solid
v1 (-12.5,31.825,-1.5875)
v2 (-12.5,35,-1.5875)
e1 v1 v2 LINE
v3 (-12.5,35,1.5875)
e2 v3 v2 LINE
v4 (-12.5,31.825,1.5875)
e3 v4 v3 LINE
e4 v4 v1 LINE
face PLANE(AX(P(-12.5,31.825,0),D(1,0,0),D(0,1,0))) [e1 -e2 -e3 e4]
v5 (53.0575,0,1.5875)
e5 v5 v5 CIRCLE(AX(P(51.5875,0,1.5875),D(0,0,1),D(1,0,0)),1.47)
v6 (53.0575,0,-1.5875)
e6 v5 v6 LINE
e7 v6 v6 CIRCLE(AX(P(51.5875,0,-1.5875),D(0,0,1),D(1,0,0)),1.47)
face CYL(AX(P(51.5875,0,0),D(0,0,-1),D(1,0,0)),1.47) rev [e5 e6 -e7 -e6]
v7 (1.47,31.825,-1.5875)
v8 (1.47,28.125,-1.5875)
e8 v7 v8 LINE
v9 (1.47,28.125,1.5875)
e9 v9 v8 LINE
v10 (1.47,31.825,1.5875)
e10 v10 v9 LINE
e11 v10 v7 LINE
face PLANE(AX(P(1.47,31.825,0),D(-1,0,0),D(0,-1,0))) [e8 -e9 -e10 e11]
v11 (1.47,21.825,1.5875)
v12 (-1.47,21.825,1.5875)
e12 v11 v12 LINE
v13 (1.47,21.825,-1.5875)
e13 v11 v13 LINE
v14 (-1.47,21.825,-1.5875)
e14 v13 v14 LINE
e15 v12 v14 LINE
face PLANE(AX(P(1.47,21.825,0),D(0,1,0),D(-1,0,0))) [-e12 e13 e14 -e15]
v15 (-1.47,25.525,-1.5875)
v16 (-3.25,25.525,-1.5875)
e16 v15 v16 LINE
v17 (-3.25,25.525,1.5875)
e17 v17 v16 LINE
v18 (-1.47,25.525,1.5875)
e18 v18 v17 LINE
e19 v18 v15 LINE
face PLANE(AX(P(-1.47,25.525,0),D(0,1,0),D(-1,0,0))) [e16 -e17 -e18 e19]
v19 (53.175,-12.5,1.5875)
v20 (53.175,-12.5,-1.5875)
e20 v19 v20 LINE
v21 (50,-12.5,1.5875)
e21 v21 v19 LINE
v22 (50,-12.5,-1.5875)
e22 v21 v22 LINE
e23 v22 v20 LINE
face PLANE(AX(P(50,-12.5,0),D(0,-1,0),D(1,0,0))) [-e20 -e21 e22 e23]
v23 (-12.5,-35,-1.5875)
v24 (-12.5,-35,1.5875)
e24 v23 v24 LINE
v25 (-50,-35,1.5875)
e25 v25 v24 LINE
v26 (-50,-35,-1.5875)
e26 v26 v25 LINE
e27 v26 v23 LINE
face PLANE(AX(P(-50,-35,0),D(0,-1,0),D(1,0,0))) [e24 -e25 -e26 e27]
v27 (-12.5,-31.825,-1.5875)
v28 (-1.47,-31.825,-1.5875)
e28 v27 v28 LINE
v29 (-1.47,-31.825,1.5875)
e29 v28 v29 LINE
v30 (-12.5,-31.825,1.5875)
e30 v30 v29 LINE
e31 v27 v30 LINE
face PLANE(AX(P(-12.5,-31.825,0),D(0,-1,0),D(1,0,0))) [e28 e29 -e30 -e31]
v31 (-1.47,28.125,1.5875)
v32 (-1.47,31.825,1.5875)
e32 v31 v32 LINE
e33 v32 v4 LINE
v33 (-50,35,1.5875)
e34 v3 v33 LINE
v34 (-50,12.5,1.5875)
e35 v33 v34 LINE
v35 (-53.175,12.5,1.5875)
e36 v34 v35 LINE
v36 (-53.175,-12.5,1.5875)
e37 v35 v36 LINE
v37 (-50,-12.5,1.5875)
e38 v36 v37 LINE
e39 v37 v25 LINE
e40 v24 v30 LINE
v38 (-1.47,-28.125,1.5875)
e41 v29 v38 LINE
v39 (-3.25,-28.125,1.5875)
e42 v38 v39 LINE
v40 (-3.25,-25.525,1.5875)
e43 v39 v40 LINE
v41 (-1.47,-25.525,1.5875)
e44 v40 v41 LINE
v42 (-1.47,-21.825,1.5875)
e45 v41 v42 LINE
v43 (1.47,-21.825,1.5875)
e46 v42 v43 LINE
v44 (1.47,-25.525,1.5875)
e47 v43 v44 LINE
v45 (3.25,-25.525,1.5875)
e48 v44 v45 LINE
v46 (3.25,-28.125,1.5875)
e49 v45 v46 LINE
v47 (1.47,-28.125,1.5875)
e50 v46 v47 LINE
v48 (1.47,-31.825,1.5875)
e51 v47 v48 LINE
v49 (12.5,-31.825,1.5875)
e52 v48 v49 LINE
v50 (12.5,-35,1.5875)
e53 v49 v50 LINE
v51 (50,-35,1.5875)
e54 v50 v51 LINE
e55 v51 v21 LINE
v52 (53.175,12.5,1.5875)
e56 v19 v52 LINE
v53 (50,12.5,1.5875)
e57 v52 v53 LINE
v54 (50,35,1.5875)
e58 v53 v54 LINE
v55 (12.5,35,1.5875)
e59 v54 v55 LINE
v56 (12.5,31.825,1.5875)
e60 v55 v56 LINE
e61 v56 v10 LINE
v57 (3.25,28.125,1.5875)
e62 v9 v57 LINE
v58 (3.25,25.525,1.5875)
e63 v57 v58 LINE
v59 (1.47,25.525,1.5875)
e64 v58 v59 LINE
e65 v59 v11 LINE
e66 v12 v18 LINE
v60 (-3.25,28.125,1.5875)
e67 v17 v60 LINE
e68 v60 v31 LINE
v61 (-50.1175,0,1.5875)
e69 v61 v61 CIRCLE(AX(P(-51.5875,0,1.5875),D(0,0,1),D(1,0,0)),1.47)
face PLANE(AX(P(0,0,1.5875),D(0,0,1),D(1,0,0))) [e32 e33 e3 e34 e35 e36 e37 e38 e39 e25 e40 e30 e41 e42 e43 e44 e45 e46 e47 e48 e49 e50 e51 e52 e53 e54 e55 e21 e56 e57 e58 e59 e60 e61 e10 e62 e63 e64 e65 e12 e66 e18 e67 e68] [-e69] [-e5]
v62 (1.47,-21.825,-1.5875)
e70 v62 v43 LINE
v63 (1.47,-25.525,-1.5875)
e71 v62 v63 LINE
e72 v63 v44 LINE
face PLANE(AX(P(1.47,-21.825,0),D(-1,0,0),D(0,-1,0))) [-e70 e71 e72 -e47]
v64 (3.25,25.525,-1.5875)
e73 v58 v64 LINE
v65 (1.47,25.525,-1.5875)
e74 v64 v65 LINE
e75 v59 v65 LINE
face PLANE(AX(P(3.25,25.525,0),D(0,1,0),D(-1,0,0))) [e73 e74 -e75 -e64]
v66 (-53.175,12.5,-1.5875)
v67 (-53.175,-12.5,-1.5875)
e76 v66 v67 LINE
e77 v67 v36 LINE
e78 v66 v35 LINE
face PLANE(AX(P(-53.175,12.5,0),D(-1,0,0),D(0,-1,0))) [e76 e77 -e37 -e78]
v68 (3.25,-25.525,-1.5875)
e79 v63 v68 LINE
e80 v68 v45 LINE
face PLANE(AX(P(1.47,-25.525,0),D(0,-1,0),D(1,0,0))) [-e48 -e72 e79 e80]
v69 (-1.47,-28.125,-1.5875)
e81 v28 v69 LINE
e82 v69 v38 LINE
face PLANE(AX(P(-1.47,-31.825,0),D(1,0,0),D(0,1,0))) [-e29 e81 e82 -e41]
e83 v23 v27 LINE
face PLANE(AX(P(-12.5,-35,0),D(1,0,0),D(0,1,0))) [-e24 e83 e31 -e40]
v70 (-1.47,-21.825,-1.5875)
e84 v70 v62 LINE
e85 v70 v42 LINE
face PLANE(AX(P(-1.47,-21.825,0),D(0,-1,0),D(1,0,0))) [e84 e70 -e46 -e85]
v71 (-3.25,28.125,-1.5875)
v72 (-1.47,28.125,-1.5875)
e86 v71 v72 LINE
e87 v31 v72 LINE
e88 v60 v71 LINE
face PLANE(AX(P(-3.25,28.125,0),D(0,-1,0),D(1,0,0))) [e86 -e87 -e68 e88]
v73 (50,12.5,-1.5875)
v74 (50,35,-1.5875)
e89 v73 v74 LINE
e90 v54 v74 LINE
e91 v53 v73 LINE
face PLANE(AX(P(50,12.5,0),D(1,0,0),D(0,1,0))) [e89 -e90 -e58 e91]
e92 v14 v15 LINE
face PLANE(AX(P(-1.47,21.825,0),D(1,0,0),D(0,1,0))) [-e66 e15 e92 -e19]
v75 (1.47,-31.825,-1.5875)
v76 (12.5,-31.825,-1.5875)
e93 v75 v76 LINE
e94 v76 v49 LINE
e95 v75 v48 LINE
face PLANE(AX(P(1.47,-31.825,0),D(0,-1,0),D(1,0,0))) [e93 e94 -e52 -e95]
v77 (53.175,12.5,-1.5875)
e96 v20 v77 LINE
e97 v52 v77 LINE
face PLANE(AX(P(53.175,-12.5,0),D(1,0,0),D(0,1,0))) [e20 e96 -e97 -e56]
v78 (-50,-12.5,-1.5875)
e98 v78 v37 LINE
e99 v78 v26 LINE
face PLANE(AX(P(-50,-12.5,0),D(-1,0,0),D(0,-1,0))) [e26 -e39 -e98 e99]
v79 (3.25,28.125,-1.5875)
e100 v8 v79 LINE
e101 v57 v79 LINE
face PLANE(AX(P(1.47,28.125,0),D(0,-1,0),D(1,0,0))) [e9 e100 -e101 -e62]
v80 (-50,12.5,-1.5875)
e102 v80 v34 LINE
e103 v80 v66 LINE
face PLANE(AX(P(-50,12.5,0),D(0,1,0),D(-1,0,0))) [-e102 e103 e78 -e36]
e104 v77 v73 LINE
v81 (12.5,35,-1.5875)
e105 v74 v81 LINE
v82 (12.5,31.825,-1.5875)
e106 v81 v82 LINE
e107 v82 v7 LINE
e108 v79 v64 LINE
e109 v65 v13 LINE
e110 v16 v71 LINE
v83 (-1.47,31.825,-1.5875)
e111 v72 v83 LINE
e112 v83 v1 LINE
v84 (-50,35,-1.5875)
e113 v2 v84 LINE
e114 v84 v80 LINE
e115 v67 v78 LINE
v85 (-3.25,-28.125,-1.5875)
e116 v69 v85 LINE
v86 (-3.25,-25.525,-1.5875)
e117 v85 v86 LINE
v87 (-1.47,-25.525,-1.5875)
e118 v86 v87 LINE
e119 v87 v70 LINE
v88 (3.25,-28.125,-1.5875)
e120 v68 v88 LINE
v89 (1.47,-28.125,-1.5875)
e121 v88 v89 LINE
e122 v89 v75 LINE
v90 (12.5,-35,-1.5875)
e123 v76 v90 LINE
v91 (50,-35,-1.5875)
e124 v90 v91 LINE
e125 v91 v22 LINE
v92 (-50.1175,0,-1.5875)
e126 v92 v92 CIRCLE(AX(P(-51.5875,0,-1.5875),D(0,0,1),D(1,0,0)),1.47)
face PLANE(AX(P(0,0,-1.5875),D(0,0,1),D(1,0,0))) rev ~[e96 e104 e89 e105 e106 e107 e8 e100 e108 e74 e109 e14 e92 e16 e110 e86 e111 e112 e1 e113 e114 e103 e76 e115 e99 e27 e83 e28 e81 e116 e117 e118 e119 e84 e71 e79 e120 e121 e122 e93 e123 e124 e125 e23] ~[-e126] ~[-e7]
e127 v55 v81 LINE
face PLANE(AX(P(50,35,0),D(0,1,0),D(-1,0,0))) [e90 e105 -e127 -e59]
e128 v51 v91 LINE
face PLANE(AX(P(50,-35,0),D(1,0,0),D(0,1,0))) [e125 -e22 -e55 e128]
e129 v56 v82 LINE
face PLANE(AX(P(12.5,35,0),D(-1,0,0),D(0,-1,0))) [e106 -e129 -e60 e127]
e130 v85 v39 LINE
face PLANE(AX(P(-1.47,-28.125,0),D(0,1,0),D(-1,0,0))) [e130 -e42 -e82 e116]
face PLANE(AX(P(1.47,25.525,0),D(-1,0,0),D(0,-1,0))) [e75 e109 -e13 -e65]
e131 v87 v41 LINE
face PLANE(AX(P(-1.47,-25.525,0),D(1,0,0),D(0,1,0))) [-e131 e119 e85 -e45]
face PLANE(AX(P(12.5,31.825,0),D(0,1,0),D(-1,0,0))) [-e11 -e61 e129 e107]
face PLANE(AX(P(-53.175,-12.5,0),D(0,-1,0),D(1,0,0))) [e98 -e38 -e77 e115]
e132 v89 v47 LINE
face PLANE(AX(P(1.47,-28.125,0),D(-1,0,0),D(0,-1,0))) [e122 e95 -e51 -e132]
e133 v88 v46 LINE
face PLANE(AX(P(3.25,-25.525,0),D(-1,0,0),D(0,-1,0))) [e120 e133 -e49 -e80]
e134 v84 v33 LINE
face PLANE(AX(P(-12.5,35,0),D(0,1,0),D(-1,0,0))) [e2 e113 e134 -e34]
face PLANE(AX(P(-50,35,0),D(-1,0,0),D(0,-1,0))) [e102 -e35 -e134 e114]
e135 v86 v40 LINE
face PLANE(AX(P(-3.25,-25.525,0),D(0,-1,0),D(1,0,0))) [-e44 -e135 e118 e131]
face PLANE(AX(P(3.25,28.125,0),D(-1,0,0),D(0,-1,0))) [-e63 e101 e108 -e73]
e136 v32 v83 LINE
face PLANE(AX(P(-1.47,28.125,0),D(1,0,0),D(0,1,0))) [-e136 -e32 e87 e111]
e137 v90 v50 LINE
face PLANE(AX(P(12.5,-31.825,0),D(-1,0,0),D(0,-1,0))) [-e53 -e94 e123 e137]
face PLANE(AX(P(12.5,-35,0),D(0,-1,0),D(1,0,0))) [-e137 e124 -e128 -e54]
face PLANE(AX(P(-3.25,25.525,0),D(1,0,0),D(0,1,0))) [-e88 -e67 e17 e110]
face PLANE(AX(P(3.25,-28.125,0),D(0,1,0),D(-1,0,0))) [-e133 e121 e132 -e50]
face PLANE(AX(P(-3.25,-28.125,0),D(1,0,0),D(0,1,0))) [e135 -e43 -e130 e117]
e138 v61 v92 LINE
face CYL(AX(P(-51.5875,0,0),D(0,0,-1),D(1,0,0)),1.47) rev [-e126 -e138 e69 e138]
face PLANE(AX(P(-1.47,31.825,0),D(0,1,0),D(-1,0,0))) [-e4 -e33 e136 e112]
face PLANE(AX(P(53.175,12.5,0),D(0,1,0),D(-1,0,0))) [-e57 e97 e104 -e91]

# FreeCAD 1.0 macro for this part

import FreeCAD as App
import Part
import Sketcher

V = App.Vector

doc = App.newDocument("Part")
params = doc.addObject("Spreadsheet::Sheet", "Params")
for row, (alias, value) in enumerate([
    ("sketch1_diameter", "2.94 mm"),
    ("sketch1_height", "25 mm"),
    ("sketch1_width", "37.5 mm"),
    ("sketch1_height2", "22.5 mm"),
    ("sketch1_height3", "3.7 mm"),
    ("pad1_length", "3.175 mm"),
], start=1):
    params.set(f"A{row}", alias)
    params.set(f"B{row}", "=" + value)
    params.setAlias(f"B{row}", alias)

body = doc.addObject("PartDesign::Body", "Body")

# Sketch on XY plane
sketch1 = doc.addObject("Sketcher::SketchObject", "Sketch")
body.addObject(sketch1)
sketch1.AttachmentSupport = (doc.XY_Plane, [""])
sketch1.MapMode = "FlatFace"
sketch1.addGeometry([
    Part.LineSegment(V(-12.5, 35, 0), V(-50, 35, 0)),  # 0
    Part.LineSegment(V(-50, 35, 0), V(-50, 12.5, 0)),  # 1
    Part.LineSegment(V(-50, 12.5, 0), V(-53.2, 12.5, 0)),  # 2
    Part.LineSegment(V(-53.2, 12.5, 0), V(-53.2, -12.5, 0)),  # 3
    Part.LineSegment(V(-53.2, -12.5, 0), V(-50, -12.5, 0)),  # 4
    Part.LineSegment(V(-50, -12.5, 0), V(-50, -35, 0)),  # 5
    Part.LineSegment(V(-50, -35, 0), V(-12.5, -35, 0)),  # 6
    Part.LineSegment(V(-12.5, -35, 0), V(-12.5, -31.8, 0)),  # 7
    Part.LineSegment(V(-12.5, -31.8, 0), V(-1.5, -31.8, 0)),  # 8
    Part.LineSegment(V(-1.5, -31.8, 0), V(-1.5, -28.1, 0)),  # 9
    Part.LineSegment(V(-1.5, -28.1, 0), V(-3.2, -28.1, 0)),  # 10
    Part.LineSegment(V(-3.2, -28.1, 0), V(-3.2, -25.5, 0)),  # 11
    Part.LineSegment(V(-3.2, -25.5, 0), V(-1.5, -25.5, 0)),  # 12
    Part.LineSegment(V(-1.5, -25.5, 0), V(-1.5, -21.8, 0)),  # 13
    Part.LineSegment(V(-1.5, -21.8, 0), V(1.5, -21.8, 0)),  # 14
    Part.LineSegment(V(1.5, -21.8, 0), V(1.5, -25.5, 0)),  # 15
    Part.LineSegment(V(1.5, -25.5, 0), V(3.2, -25.5, 0)),  # 16
    Part.LineSegment(V(3.2, -25.5, 0), V(3.2, -28.1, 0)),  # 17
    Part.LineSegment(V(3.2, -28.1, 0), V(1.5, -28.1, 0)),  # 18
    Part.LineSegment(V(1.5, -28.1, 0), V(1.5, -31.8, 0)),  # 19
    Part.LineSegment(V(1.5, -31.8, 0), V(12.5, -31.8, 0)),  # 20
    Part.LineSegment(V(12.5, -31.8, 0), V(12.5, -35, 0)),  # 21
    Part.LineSegment(V(12.5, -35, 0), V(50, -35, 0)),  # 22
    Part.LineSegment(V(50, -35, 0), V(50, -12.5, 0)),  # 23
    Part.LineSegment(V(50, -12.5, 0), V(53.2, -12.5, 0)),  # 24
    Part.LineSegment(V(53.2, -12.5, 0), V(53.2, 12.5, 0)),  # 25
    Part.LineSegment(V(53.2, 12.5, 0), V(50, 12.5, 0)),  # 26
    Part.LineSegment(V(50, 12.5, 0), V(50, 35, 0)),  # 27
    Part.LineSegment(V(50, 35, 0), V(12.5, 35, 0)),  # 28
    Part.LineSegment(V(12.5, 35, 0), V(12.5, 31.8, 0)),  # 29
    Part.LineSegment(V(12.5, 31.8, 0), V(1.5, 31.8, 0)),  # 30
    Part.LineSegment(V(1.5, 31.8, 0), V(1.5, 28.1, 0)),  # 31
    Part.LineSegment(V(1.5, 28.1, 0), V(3.2, 28.1, 0)),  # 32
    Part.LineSegment(V(3.2, 28.1, 0), V(3.2, 25.5, 0)),  # 33
    Part.LineSegment(V(3.2, 25.5, 0), V(1.5, 25.5, 0)),  # 34
    Part.LineSegment(V(1.5, 25.5, 0), V(1.5, 21.8, 0)),  # 35
    Part.LineSegment(V(1.5, 21.8, 0), V(-1.5, 21.8, 0)),  # 36
    Part.LineSegment(V(-1.5, 21.8, 0), V(-1.5, 25.5, 0)),  # 37
    Part.LineSegment(V(-1.5, 25.5, 0), V(-3.2, 25.5, 0)),  # 38
    Part.LineSegment(V(-3.2, 25.5, 0), V(-3.2, 28.1, 0)),  # 39
    Part.LineSegment(V(-3.2, 28.1, 0), V(-1.5, 28.1, 0)),  # 40
    Part.LineSegment(V(-1.5, 28.1, 0), V(-1.5, 31.8, 0)),  # 41
    Part.LineSegment(V(-1.5, 31.8, 0), V(-12.5, 31.8, 0)),  # 42
    Part.LineSegment(V(-12.5, 31.8, 0), V(-12.5, 35, 0)),  # 43
    Part.Circle(V(-51.6, 0, 0), V(0, 0, 1), 1.5),  # 44
    Part.Circle(V(51.6, 0, 0), V(0, 0, 1), 1.5),  # 45
], False)
sketch1.addConstraint([
    Sketcher.Constraint("Coincident", 0, 2, 1, 1),
    Sketcher.Constraint("Coincident", 1, 2, 2, 1),
    Sketcher.Constraint("Coincident", 2, 2, 3, 1),
    Sketcher.Constraint("Coincident", 3, 2, 4, 1),
    Sketcher.Constraint("Coincident", 4, 2, 5, 1),
    Sketcher.Constraint("Coincident", 5, 2, 6, 1),
    Sketcher.Constraint("Coincident", 6, 2, 7, 1),
    Sketcher.Constraint("Coincident", 7, 2, 8, 1),
    Sketcher.Constraint("Coincident", 8, 2, 9, 1),
    Sketcher.Constraint("Coincident", 9, 2, 10, 1),
    Sketcher.Constraint("Coincident", 10, 2, 11, 1),
    Sketcher.Constraint("Coincident", 11, 2, 12, 1),
    Sketcher.Constraint("Coincident", 12, 2, 13, 1),
    Sketcher.Constraint("Coincident", 13, 2, 14, 1),
    Sketcher.Constraint("Coincident", 14, 2, 15, 1),
    Sketcher.Constraint("Coincident", 15, 2, 16, 1),
    Sketcher.Constraint("Coincident", 16, 2, 17, 1),
    Sketcher.Constraint("Coincident", 17, 2, 18, 1),
    Sketcher.Constraint("Coincident", 18, 2, 19, 1),
    Sketcher.Constraint("Coincident", 19, 2, 20, 1),
    Sketcher.Constraint("Coincident", 20, 2, 21, 1),
    Sketcher.Constraint("Coincident", 21, 2, 22, 1),
    Sketcher.Constraint("Coincident", 22, 2, 23, 1),
    Sketcher.Constraint("Coincident", 23, 2, 24, 1),
    Sketcher.Constraint("Coincident", 24, 2, 25, 1),
    Sketcher.Constraint("Coincident", 25, 2, 26, 1),
    Sketcher.Constraint("Coincident", 26, 2, 27, 1),
    Sketcher.Constraint("Coincident", 27, 2, 28, 1),
    Sketcher.Constraint("Coincident", 28, 2, 29, 1),
    Sketcher.Constraint("Coincident", 29, 2, 30, 1),
    Sketcher.Constraint("Coincident", 30, 2, 31, 1),
    Sketcher.Constraint("Coincident", 31, 2, 32, 1),
    Sketcher.Constraint("Coincident", 32, 2, 33, 1),
    Sketcher.Constraint("Coincident", 33, 2, 34, 1),
    Sketcher.Constraint("Coincident", 34, 2, 35, 1),
    Sketcher.Constraint("Coincident", 35, 2, 36, 1),
    Sketcher.Constraint("Coincident", 36, 2, 37, 1),
    Sketcher.Constraint("Coincident", 37, 2, 38, 1),
    Sketcher.Constraint("Coincident", 38, 2, 39, 1),
    Sketcher.Constraint("Coincident", 39, 2, 40, 1),
    Sketcher.Constraint("Coincident", 40, 2, 41, 1),
    Sketcher.Constraint("Coincident", 41, 2, 42, 1),
    Sketcher.Constraint("Coincident", 42, 2, 43, 1),
    Sketcher.Constraint("Coincident", 43, 2, 0, 1),
    Sketcher.Constraint("Horizontal", 0),
    Sketcher.Constraint("Vertical", 1),
    Sketcher.Constraint("Horizontal", 2),
    Sketcher.Constraint("Vertical", 3),
    Sketcher.Constraint("Horizontal", 4),
    Sketcher.Constraint("Vertical", 5),
    Sketcher.Constraint("Horizontal", 6),
    Sketcher.Constraint("Vertical", 7),
    Sketcher.Constraint("Horizontal", 8),
    Sketcher.Constraint("Vertical", 9),
    Sketcher.Constraint("Horizontal", 10),
    Sketcher.Constraint("Vertical", 11),
    Sketcher.Constraint("Horizontal", 12),
    Sketcher.Constraint("Vertical", 13),
    Sketcher.Constraint("Horizontal", 14),
    Sketcher.Constraint("Vertical", 15),
    Sketcher.Constraint("Horizontal", 16),
    Sketcher.Constraint("Vertical", 17),
    Sketcher.Constraint("Horizontal", 18),
    Sketcher.Constraint("Vertical", 19),
    Sketcher.Constraint("Horizontal", 20),
    Sketcher.Constraint("Vertical", 21),
    Sketcher.Constraint("Horizontal", 22),
    Sketcher.Constraint("Vertical", 23),
    Sketcher.Constraint("Horizontal", 24),
    Sketcher.Constraint("Vertical", 25),
    Sketcher.Constraint("Horizontal", 26),
    Sketcher.Constraint("Vertical", 27),
    Sketcher.Constraint("Horizontal", 28),
    Sketcher.Constraint("Vertical", 29),
    Sketcher.Constraint("Horizontal", 30),
    Sketcher.Constraint("Vertical", 31),
    Sketcher.Constraint("Horizontal", 32),
    Sketcher.Constraint("Vertical", 33),
    Sketcher.Constraint("Horizontal", 34),
    Sketcher.Constraint("Vertical", 35),
    Sketcher.Constraint("Horizontal", 36),
    Sketcher.Constraint("Vertical", 37),
    Sketcher.Constraint("Horizontal", 38),
    Sketcher.Constraint("Vertical", 39),
    Sketcher.Constraint("Horizontal", 40),
    Sketcher.Constraint("Vertical", 41),
    Sketcher.Constraint("Horizontal", 42),
    Sketcher.Constraint("Vertical", 43),
    Sketcher.Constraint("Equal", 44, 45),
    Sketcher.Constraint("Symmetric", 44, 3, 45, 3, -1, 1),
    Sketcher.Constraint("Symmetric", 0, 2, 22, 2, -1, 1),
    Sketcher.Constraint("Symmetric", 2, 2, 24, 2, -1, 1),
    Sketcher.Constraint("Symmetric", 4, 2, 26, 2, -1, 1),
    Sketcher.Constraint("Symmetric", 6, 2, 28, 2, -1, 1),
    Sketcher.Constraint("Symmetric", 8, 2, 30, 2, -1, 1),
    Sketcher.Constraint("Symmetric", 10, 2, 32, 2, -1, 1),
    Sketcher.Constraint("Symmetric", 12, 2, 34, 2, -1, 1),
    Sketcher.Constraint("Symmetric", 14, 2, 36, 2, -1, 1),
    Sketcher.Constraint("Symmetric", 16, 2, 38, 2, -1, 1),
    Sketcher.Constraint("Symmetric", 18, 2, 40, 2, -1, 1),
    Sketcher.Constraint("Symmetric", 20, 2, 42, 2, -1, 1),
    Sketcher.Constraint("Symmetric", 12, 2, 15, 2, -2),
    Sketcher.Constraint("Symmetric", 10, 2, 17, 2, -2),
    Sketcher.Constraint("Symmetric", 8, 2, 19, 2, -2),
    Sketcher.Constraint("Symmetric", 6, 2, 21, 2, -2),
    Sketcher.Constraint("Symmetric", 4, 2, 23, 2, -2),
    Sketcher.Constraint("PointOnObject", 44, 3, -1),
    Sketcher.Constraint("Vertical", 9, 2, 12, 2),
    Sketcher.Constraint("Equal", 26, 7),
    Sketcher.Constraint("Equal", 9, 13),
    Sketcher.Constraint("Diameter", 44, 2.94),
    Sketcher.Constraint("DistanceY", 3, 2, 3, 1, 25.0),
    Sketcher.Constraint("DistanceX", 0, 2, 0, 1, 37.5),
    Sketcher.Constraint("DistanceY", 1, 2, 1, 1, 22.5),
    Sketcher.Constraint("DistanceY", 9, 1, 9, 2, 3.7),
    Sketcher.Constraint("DistanceY", 11, 1, 11, 2, 2.6),
    Sketcher.Constraint("DistanceX", 0, 2, -1, 1, 50.0),
    Sketcher.Constraint("DistanceX", 8, 1, 8, 2, 11.03),
    Sketcher.Constraint("DistanceX", 10, 2, 10, 1, 1.78),
    Sketcher.Constraint("DistanceX", 2, 2, 2, 1, 3.175),
    Sketcher.Constraint("DistanceX", 44, 3, 45, 3, 103.175),
])
sketch1.setExpression("Constraints[110]", "Params.sketch1_diameter")
sketch1.setExpression("Constraints[111]", "Params.sketch1_height")
sketch1.setExpression("Constraints[112]", "Params.sketch1_width")
sketch1.setExpression("Constraints[113]", "Params.sketch1_height2")
sketch1.setExpression("Constraints[114]", "Params.sketch1_height3")
pad1 = doc.addObject("PartDesign::Pad", "Pad")
body.addObject(pad1)
pad1.Profile = sketch1
pad1.setExpression("Length", "Params.pad1_length")
pad1.Midplane = True

doc.recompute()
